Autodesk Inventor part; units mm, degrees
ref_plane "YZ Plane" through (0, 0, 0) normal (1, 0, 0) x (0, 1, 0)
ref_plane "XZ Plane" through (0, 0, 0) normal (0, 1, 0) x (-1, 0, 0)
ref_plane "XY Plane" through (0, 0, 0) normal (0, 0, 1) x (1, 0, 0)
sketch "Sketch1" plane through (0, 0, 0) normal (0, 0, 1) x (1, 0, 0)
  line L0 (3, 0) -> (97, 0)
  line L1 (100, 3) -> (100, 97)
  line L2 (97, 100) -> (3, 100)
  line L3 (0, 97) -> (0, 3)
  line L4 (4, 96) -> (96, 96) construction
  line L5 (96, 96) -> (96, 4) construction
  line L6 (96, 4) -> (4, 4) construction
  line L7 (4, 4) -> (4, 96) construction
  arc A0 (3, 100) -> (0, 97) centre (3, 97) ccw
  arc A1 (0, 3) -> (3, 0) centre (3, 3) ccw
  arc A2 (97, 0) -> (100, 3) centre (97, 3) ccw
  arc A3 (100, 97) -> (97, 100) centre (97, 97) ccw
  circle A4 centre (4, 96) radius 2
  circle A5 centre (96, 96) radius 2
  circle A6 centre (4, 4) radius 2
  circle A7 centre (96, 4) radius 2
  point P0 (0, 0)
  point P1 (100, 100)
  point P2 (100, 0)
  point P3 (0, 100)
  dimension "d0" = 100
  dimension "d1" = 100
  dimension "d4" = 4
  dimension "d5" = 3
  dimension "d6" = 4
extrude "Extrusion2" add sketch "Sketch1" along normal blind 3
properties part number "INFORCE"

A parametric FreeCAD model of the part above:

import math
import FreeCAD as App
import Part
import Sketcher
Q = App.Units.Quantity

doc = App.newDocument("Part")
params = doc.addObject("Spreadsheet::Sheet", "Params")
for row, (alias, value) in enumerate([
    ("sketch1_diameter", "4 mm"),
    ("sketch1_radius", "3 mm"),
    ("pad1_length", "3 mm"),
], start=1):
    params.set(f"A{row}", alias)
    params.set(f"B{row}", "=" + value)
    params.setAlias(f"B{row}", alias)

body = doc.addObject("PartDesign::Body", "Body")

# Sketch on XY plane
sketch1 = body.newObject("Sketcher::SketchObject", "Sketch")
sketch1.AttachmentSupport = (doc.getObject("XY_Plane"), [""])
sketch1.MapMode = "FlatFace"
sketch1.addGeometry(Part.ArcOfCircle(Part.Circle(App.Vector(3, 3, 0), App.Vector(0, 0, 1), 3), math.radians(180), math.radians(270)), False)
sketch1.addGeometry(Part.LineSegment(App.Vector(3, 0, 0), App.Vector(97, 0, 0)), False)
sketch1.addGeometry(Part.ArcOfCircle(Part.Circle(App.Vector(97, 3, 0), App.Vector(0, 0, 1), 3), math.radians(-90), math.radians(0)), False)
sketch1.addGeometry(Part.LineSegment(App.Vector(100, 3, 0), App.Vector(100, 97, 0)), False)
sketch1.addGeometry(Part.ArcOfCircle(Part.Circle(App.Vector(97, 97, 0), App.Vector(0, 0, 1), 3), math.radians(0), math.radians(90)), False)
sketch1.addGeometry(Part.LineSegment(App.Vector(97, 100, 0), App.Vector(3, 100, 0)), False)
sketch1.addGeometry(Part.ArcOfCircle(Part.Circle(App.Vector(3, 97, 0), App.Vector(0, 0, 1), 3), math.radians(90), math.radians(180)), False)
sketch1.addGeometry(Part.LineSegment(App.Vector(0, 97, 0), App.Vector(0, 3, 0)), False)
sketch1.addGeometry(Part.Circle(App.Vector(4, 4, 0), App.Vector(0, 0, 1), 2), False)
sketch1.addGeometry(Part.Circle(App.Vector(96, 4, 0), App.Vector(0, 0, 1), 2), False)
sketch1.addGeometry(Part.Circle(App.Vector(4, 96, 0), App.Vector(0, 0, 1), 2), False)
sketch1.addGeometry(Part.Circle(App.Vector(96, 96, 0), App.Vector(0, 0, 1), 2), False)
sketch1.addConstraint(Sketcher.Constraint("Tangent", 0, 2, 1, 1))
sketch1.addConstraint(Sketcher.Constraint("Tangent", 1, 2, 2, 1))
sketch1.addConstraint(Sketcher.Constraint("Tangent", 2, 2, 3, 1))
sketch1.addConstraint(Sketcher.Constraint("Tangent", 3, 2, 4, 1))
sketch1.addConstraint(Sketcher.Constraint("Tangent", 4, 2, 5, 1))
sketch1.addConstraint(Sketcher.Constraint("Tangent", 5, 2, 6, 1))
sketch1.addConstraint(Sketcher.Constraint("Tangent", 6, 2, 7, 1))
sketch1.addConstraint(Sketcher.Constraint("Tangent", 7, 2, 0, 1))
sketch1.addConstraint(Sketcher.Constraint("Horizontal", 1))
sketch1.addConstraint(Sketcher.Constraint("Vertical", 3))
sketch1.addConstraint(Sketcher.Constraint("Horizontal", 5))
sketch1.addConstraint(Sketcher.Constraint("Vertical", 7))
sketch1.addConstraint(Sketcher.Constraint("Equal", 0, 2))
sketch1.addConstraint(Sketcher.Constraint("Equal", 2, 4))
sketch1.addConstraint(Sketcher.Constraint("Equal", 4, 6))
sketch1.addConstraint(Sketcher.Constraint("Equal", 8, 9))
sketch1.addConstraint(Sketcher.Constraint("Equal", 9, 10))
sketch1.addConstraint(Sketcher.Constraint("Equal", 10, 11))
sketch1.addConstraint(Sketcher.Constraint("PointOnObject", 0, 2, -1))
sketch1.addConstraint(Sketcher.Constraint("PointOnObject", 6, 2, -2))
sketch1.addConstraint(Sketcher.Constraint("Horizontal", 8, 3, 9, 3))
sketch1.addConstraint(Sketcher.Constraint("Horizontal", 10, 3, 11, 3))
sketch1.addConstraint(Sketcher.Constraint("Vertical", 8, 3, 10, 3))
sketch1.addConstraint(Sketcher.Constraint("Vertical", 9, 3, 11, 3))
sketch1.addConstraint(Sketcher.Constraint("Equal", 5, 3))
sketch1.addConstraint(Sketcher.Constraint("Diameter", 8, Q("4 mm")))
sketch1.addConstraint(Sketcher.Constraint("Radius", 0, Q("3 mm")))
sketch1.addConstraint(Sketcher.Constraint("DistanceX", -1, 1, 8, 3, Q("4 mm")))
sketch1.addConstraint(Sketcher.Constraint("DistanceY", -1, 1, 8, 3, Q("4 mm")))
sketch1.addConstraint(Sketcher.Constraint("DistanceX", -1, 1, 2, 2, Q("100 mm")))
sketch1.addConstraint(Sketcher.Constraint("DistanceX", 9, 3, 2, 2, Q("4 mm")))
sketch1.addConstraint(Sketcher.Constraint("DistanceY", 11, 3, 4, 2, Q("4 mm")))
sketch1.setExpression("Constraints[25]", "Params.sketch1_diameter")
sketch1.setExpression("Constraints[26]", "Params.sketch1_radius")
pad1 = body.newObject("PartDesign::Pad", "Pad")
pad1.Profile = sketch1
pad1.setExpression("Length", "Params.pad1_length")

doc.recompute()
